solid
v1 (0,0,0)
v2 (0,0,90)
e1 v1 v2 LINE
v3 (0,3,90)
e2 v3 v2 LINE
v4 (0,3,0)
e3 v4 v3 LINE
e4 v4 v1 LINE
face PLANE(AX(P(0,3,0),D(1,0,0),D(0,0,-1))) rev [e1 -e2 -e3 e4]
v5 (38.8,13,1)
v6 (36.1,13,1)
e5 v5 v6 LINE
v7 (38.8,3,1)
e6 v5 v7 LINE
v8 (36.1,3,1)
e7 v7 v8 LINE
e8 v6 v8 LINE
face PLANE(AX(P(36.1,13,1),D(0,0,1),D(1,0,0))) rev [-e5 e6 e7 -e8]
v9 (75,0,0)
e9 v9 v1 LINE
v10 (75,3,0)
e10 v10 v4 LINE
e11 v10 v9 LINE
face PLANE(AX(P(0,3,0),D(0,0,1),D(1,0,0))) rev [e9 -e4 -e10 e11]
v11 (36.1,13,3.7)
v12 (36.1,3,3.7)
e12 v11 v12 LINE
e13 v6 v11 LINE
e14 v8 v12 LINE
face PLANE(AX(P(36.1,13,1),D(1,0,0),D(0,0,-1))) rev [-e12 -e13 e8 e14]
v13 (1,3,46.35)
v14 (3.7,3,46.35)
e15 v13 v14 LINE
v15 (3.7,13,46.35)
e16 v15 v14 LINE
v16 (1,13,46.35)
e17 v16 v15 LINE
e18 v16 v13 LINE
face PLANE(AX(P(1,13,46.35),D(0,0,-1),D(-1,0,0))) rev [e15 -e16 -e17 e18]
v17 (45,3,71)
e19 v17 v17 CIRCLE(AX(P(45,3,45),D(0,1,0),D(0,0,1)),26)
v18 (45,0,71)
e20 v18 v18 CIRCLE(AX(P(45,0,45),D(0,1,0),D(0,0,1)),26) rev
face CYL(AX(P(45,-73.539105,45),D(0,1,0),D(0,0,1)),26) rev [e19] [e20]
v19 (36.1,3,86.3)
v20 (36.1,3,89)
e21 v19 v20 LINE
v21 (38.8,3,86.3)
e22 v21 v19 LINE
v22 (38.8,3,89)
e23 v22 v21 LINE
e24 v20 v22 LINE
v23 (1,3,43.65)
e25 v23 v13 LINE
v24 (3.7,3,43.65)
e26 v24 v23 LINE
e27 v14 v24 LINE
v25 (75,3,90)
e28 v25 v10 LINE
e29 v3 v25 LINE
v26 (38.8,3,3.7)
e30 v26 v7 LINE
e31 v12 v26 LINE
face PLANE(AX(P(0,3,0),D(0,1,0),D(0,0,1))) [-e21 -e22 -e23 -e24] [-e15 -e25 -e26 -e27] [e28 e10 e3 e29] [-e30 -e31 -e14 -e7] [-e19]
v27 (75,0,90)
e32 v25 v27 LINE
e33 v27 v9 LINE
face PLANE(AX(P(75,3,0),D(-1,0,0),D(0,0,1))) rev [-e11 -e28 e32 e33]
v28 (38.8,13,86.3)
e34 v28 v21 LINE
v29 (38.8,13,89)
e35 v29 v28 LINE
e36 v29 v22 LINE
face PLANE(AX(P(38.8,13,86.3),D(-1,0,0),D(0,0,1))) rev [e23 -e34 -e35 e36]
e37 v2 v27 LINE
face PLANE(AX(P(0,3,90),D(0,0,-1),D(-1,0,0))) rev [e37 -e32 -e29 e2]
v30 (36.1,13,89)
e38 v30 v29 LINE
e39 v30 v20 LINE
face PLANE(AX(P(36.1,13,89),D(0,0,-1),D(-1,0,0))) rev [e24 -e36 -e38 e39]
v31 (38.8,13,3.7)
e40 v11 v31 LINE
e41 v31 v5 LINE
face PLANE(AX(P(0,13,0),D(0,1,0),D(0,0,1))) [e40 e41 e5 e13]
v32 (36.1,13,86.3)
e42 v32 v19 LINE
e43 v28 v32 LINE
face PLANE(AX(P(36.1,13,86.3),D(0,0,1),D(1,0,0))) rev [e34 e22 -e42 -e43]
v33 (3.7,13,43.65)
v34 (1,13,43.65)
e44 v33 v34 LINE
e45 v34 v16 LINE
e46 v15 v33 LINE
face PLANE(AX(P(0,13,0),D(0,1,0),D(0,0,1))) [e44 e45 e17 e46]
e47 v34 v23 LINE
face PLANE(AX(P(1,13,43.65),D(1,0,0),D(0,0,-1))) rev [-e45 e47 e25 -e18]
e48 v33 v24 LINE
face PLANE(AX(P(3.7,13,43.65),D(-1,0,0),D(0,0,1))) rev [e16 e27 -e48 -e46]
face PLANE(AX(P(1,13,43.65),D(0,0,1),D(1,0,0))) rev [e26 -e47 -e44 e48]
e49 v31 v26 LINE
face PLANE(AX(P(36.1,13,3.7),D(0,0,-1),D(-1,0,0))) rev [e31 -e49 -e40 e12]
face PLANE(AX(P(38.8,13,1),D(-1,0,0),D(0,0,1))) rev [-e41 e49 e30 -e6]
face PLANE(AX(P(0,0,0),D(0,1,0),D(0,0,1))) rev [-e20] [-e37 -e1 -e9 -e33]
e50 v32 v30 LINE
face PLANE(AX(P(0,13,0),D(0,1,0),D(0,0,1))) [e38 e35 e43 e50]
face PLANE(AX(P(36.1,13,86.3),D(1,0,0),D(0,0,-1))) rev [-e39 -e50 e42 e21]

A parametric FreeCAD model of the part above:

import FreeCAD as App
import Part
import Sketcher
Q = App.Units.Quantity


def add_polygon(sketch, points):
    """Adds a closed chain of lines whose ends are joined by coincident constraints."""
    first, n = sketch.GeometryCount, len(points)
    for a, b in zip(points, points[1:] + points[:1]):
        sketch.addGeometry(Part.LineSegment(App.Vector(*a, 0), App.Vector(*b, 0)), False)
    for i in range(n):
        sketch.addConstraint(Sketcher.Constraint("Coincident", first + i, 2, first + (i + 1) % n, 1))

doc = App.newDocument("Part")
body = doc.addObject("PartDesign::Body", "Body")

# Sketch on XZ plane
sketch1 = body.newObject("Sketcher::SketchObject", "Sketch")
sketch1.AttachmentSupport = (doc.getObject("XZ_Plane"), [""])
sketch1.MapMode = "FlatFace"
add_polygon(sketch1, [(0, 0), (0, 90), (75, 90), (75, 0)])  # lines 0-3
sketch1.addConstraint([
    Sketcher.Constraint("Vertical", 0),
    Sketcher.Constraint("Horizontal", 1),
    Sketcher.Constraint("Vertical", 2),
    Sketcher.Constraint("Horizontal", 3),
    Sketcher.Constraint("Coincident", 3, 2, -1, 1),
    Sketcher.Constraint("DistanceX", 1, 1, 1, 2, Q("75 mm")),
    Sketcher.Constraint("DistanceY", 0, 1, 0, 2, Q("90 mm")),
])
pad1 = body.newObject("PartDesign::Pad", "Pad")
pad1.Profile = sketch1
pad1.Length = 3
pad1.Reversed = True

# Sketch on XZ plane
sketch2 = body.newObject("Sketcher::SketchObject", "Sketch001")
sketch2.AttachmentSupport = (doc.getObject("XZ_Plane"), [""])
sketch2.MapMode = "FlatFace"
sketch2.AttachmentOffset = App.Placement(App.Vector(0, 0, -3), App.Rotation())
add_polygon(sketch2, [(36.1, 1), (36.1, 3.7), (38.8, 3.7), (38.8, 1)])  # lines 0-3
add_polygon(sketch2, [(1, 43.65), (1, 46.35), (3.7, 46.35), (3.7, 43.65)])  # lines 4-7
add_polygon(sketch2, [(36.1, 86.3), (36.1, 89), (38.8, 89), (38.8, 86.3)])  # lines 8-11
sketch2.addConstraint([
    Sketcher.Constraint("Vertical", 0),
    Sketcher.Constraint("Horizontal", 1),
    Sketcher.Constraint("Vertical", 2),
    Sketcher.Constraint("Horizontal", 3),
    Sketcher.Constraint("Vertical", 4),
    Sketcher.Constraint("Horizontal", 5),
    Sketcher.Constraint("Vertical", 6),
    Sketcher.Constraint("Horizontal", 7),
    Sketcher.Constraint("Vertical", 8),
    Sketcher.Constraint("Horizontal", 9),
    Sketcher.Constraint("Vertical", 10),
    Sketcher.Constraint("Horizontal", 11),
    Sketcher.Constraint("Vertical", 3, 2, 8, 2),
    Sketcher.Constraint("Vertical", 2, 2, 9, 2),
    Sketcher.Constraint("Equal", 3, 5),
    Sketcher.Constraint("Equal", 11, 0),
    Sketcher.Constraint("Equal", 2, 4),
    Sketcher.Constraint("Equal", 6, 8),
    Sketcher.Constraint("DistanceX", 1, 1, 1, 2, Q("2.7 mm")),
    Sketcher.Constraint("DistanceY", -1, 1, 2, 2, Q("1 mm")),
    Sketcher.Constraint("DistanceX", -1, 1, 4, 2, Q("1 mm")),
    Sketcher.Constraint("DistanceY", -1, 1, 8, 2, Q("89 mm")),
    Sketcher.Constraint("DistanceX", -1, 1, 0, 2, Q("36.1 mm")),
    Sketcher.Constraint("DistanceY", -1, 1, 4, 2, Q("46.35 mm")),
])
pad2 = body.newObject("PartDesign::Pad", "Pad001")
pad2.Profile = sketch2
pad2.Length = 10
pad2.Reversed = True

# Sketch on XZ plane
sketch3 = body.newObject("Sketcher::SketchObject", "Sketch002")
sketch3.AttachmentSupport = (doc.getObject("XZ_Plane"), [""])
sketch3.MapMode = "FlatFace"
sketch3.AttachmentOffset = App.Placement(App.Vector(0, 0, -3), App.Rotation())
sketch3.addGeometry(Part.Circle(App.Vector(45, 45, 0), App.Vector(0, 0, 1), 26), False)
sketch3.addConstraint([
    Sketcher.Constraint("Diameter", 0, Q("52 mm")),
    Sketcher.Constraint("DistanceX", -1, 1, 0, 3, Q("45 mm")),
    Sketcher.Constraint("DistanceY", -1, 1, 0, 3, Q("45 mm")),
])
pocket1 = body.newObject("PartDesign::Pocket", "Pocket")
pocket1.Profile = sketch3
pocket1.Length = 3
pocket1.Reversed = True

doc.recompute()
